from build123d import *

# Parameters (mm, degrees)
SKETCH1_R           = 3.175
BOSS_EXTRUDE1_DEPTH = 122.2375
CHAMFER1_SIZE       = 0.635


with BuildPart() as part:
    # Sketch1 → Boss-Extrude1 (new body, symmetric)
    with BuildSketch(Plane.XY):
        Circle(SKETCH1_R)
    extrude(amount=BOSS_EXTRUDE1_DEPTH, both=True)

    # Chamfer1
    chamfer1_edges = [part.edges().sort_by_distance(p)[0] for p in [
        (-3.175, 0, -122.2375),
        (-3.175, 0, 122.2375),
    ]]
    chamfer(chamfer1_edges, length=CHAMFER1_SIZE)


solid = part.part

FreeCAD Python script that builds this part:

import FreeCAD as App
import Part
import Sketcher

V = App.Vector
Q = App.Units.Quantity


def edges_at(feature, points):
    """Names of the edges that pass closest to the given points."""
    edges = feature.Shape.Edges
    near = lambda p: min(range(len(edges)), key=lambda i: edges[i].distToShape(Part.Vertex(*p))[0])
    return sorted({f"Edge{near(p) + 1}" for p in points})

doc = App.newDocument("Part")
params = doc.addObject("Spreadsheet::Sheet", "Params")
for row, (alias, value) in enumerate([
    ("sketch1_diameter", "0.25 in"),
    ("pad1_length", "9.625 in"),
    ("chamfer_size", "0.025 in"),
], start=1):
    params.set(f"A{row}", alias)
    params.set(f"B{row}", "=" + value)
    params.setAlias(f"B{row}", alias)

body = doc.addObject("PartDesign::Body", "Body")

# Sketch on XY plane
sketch1 = body.newObject("Sketcher::SketchObject", "Sketch")
sketch1.AttachmentSupport = (doc.getObject("XY_Plane"), [""])
sketch1.MapMode = "FlatFace"
sketch1.addGeometry(Part.Circle(V(0, 0, 0), V(0, 0, 1), 3.175), False)
sketch1.addConstraint(Sketcher.Constraint("Coincident", 0, 3, -1, 1))
sketch1.addConstraint(Sketcher.Constraint("Diameter", 0, Q("0.25 in")))
sketch1.setExpression("Constraints[1]", "Params.sketch1_diameter")
pad1 = body.newObject("PartDesign::Pad", "Pad")
pad1.Profile = sketch1
pad1.setExpression("Length", "Params.pad1_length")
pad1.Midplane = True
doc.recompute()

chamfer = body.newObject("PartDesign::Chamfer", "Chamfer")
chamfer.Base = (pad1, edges_at(pad1, [(-3.175, 0, -122.237), (-3.175, 0, 122.237)]))
chamfer.setExpression("Size", "Params.chamfer_size")

doc.recompute()
